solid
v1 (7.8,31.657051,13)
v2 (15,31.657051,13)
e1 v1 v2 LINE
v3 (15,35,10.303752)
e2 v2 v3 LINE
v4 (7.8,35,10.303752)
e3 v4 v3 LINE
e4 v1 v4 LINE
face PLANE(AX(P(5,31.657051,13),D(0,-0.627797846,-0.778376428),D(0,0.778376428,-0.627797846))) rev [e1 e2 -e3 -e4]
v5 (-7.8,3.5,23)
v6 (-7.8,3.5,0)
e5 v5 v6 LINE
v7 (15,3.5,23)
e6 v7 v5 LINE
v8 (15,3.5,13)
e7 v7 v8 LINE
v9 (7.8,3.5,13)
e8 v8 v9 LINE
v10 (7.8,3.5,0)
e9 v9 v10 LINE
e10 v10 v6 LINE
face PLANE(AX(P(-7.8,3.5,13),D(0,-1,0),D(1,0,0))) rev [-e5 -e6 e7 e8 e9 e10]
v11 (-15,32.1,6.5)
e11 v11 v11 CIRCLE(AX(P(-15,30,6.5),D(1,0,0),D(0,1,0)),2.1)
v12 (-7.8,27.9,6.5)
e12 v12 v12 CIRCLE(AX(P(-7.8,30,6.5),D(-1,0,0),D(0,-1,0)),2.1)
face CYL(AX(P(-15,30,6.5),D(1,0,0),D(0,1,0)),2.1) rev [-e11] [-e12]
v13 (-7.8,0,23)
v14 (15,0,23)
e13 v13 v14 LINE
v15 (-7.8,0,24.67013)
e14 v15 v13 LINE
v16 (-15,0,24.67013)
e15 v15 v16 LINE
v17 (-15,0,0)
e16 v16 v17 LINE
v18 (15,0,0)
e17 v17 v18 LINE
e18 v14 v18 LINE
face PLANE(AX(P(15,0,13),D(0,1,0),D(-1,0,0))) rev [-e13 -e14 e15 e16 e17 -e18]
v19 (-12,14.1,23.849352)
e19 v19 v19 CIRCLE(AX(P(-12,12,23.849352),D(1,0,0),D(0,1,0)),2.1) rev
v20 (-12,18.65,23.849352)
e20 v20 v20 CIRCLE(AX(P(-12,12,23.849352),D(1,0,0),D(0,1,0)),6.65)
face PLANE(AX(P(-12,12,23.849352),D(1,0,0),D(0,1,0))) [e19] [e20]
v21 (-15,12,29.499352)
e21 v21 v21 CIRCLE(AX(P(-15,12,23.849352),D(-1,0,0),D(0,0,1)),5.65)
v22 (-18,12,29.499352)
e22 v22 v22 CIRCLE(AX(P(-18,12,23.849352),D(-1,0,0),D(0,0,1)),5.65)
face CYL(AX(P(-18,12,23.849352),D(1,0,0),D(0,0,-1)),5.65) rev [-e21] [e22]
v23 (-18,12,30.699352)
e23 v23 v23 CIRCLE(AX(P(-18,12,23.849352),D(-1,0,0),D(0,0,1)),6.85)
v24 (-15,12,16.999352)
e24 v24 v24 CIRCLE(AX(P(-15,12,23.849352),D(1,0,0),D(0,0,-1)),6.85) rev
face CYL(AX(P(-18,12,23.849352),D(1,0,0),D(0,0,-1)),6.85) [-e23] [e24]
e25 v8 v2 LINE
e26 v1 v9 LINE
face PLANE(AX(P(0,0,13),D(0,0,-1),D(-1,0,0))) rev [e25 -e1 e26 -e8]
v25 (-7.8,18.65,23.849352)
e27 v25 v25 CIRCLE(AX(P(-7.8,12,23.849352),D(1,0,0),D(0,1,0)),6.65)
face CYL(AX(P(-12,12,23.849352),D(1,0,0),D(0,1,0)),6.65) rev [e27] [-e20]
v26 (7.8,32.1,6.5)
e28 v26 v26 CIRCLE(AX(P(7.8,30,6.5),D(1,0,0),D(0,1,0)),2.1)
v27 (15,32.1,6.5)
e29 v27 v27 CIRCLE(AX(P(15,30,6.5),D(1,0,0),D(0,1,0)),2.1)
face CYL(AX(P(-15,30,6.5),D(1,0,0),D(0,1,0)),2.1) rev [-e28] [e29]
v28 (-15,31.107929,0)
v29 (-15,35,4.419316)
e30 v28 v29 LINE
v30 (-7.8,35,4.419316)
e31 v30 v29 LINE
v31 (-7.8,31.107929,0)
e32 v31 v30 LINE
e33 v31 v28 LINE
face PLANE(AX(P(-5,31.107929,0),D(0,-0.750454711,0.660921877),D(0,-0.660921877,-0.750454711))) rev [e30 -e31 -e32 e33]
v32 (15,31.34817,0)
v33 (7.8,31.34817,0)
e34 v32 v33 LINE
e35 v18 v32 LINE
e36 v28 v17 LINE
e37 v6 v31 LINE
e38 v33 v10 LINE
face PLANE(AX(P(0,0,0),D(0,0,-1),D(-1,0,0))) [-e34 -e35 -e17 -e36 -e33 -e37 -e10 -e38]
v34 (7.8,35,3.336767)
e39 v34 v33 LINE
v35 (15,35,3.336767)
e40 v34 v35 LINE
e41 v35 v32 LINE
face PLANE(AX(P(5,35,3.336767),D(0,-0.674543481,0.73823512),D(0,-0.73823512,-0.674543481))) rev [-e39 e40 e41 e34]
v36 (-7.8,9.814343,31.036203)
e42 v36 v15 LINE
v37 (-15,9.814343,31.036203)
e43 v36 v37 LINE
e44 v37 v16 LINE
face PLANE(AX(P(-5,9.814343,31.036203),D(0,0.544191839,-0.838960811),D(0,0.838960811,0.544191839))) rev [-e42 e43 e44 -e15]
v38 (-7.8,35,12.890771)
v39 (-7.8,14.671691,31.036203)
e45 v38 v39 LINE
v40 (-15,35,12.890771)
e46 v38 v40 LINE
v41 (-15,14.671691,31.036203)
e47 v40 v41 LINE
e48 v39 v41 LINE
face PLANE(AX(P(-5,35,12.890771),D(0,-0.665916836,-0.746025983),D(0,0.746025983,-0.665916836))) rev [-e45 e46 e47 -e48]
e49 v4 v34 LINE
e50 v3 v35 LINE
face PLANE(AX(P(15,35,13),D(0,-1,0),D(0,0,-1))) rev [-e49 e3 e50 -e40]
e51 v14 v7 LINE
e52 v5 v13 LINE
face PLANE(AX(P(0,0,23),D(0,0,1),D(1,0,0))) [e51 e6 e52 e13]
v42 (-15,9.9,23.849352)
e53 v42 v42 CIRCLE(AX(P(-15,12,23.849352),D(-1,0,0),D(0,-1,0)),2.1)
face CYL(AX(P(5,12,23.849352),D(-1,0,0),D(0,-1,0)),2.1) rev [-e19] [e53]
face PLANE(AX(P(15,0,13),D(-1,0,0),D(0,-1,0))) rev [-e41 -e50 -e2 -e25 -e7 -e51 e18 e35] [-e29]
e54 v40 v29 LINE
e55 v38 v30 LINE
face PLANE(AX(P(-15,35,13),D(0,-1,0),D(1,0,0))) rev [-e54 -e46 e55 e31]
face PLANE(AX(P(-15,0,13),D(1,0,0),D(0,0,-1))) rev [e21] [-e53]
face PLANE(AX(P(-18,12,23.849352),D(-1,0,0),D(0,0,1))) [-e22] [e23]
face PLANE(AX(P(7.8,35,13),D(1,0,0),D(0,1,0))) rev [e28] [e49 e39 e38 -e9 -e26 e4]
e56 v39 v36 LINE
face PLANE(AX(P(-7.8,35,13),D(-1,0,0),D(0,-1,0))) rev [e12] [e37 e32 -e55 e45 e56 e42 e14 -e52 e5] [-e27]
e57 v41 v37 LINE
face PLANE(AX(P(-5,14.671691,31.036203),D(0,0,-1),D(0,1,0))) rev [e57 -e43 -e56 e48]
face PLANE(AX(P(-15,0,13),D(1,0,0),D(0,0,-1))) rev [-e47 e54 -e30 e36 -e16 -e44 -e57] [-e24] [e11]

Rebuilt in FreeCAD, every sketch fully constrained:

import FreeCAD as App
import Part
import Sketcher

V = App.Vector


def add_polygon(sketch, points):
    """Adds a closed chain of lines whose ends are joined by coincident constraints."""
    first, n = sketch.GeometryCount, len(points)
    for a, b in zip(points, points[1:] + points[:1]):
        sketch.addGeometry(Part.LineSegment(App.Vector(*a, 0), App.Vector(*b, 0)), False)
    for i in range(n):
        sketch.addConstraint(Sketcher.Constraint("Coincident", first + i, 2, first + (i + 1) % n, 1))

doc = App.newDocument("Part")
body = doc.addObject("PartDesign::Body", "Body")

# Sketch on XY plane
sketch1 = doc.addObject("Sketcher::SketchObject", "Sketch")
body.addObject(sketch1)
sketch1.AttachmentSupport = (doc.XY_Plane, [""])
sketch1.MapMode = "FlatFace"
add_polygon(sketch1, [(-15, 0), (15, 0), (15, 35), (8, 35), (8, 4), (-8, 4), (-8, 35), (-15, 35)])  # lines 0-7
sketch1.addConstraint(Sketcher.Constraint("Horizontal", 0))
sketch1.addConstraint(Sketcher.Constraint("Vertical", 1))
sketch1.addConstraint(Sketcher.Constraint("Horizontal", 2))
sketch1.addConstraint(Sketcher.Constraint("Vertical", 3))
sketch1.addConstraint(Sketcher.Constraint("Horizontal", 4))
sketch1.addConstraint(Sketcher.Constraint("Vertical", 5))
sketch1.addConstraint(Sketcher.Constraint("Horizontal", 6))
sketch1.addConstraint(Sketcher.Constraint("Vertical", 7))
sketch1.addConstraint(Sketcher.Constraint("Symmetric", 0, 2, 7, 2, -1, 1))
sketch1.addConstraint(Sketcher.Constraint("Symmetric", 2, 2, 5, 2, -2))
sketch1.addConstraint(Sketcher.Constraint("DistanceX", 0, 1, 0, 2, 30.0))
sketch1.addConstraint(Sketcher.Constraint("DistanceY", 1, 1, 1, 2, 35.0))
sketch1.addConstraint(Sketcher.Constraint("DistanceX", 2, 2, 2, 1, 7.2))
sketch1.addConstraint(Sketcher.Constraint("DistanceY", 3, 2, 3, 1, 31.5))
pad1 = doc.addObject("PartDesign::Pad", "Pad")
body.addObject(pad1)
pad1.Profile = sketch1
pad1.Length = 13

# Sketch on YZ plane
sketch2 = doc.addObject("Sketcher::SketchObject", "Sketch001")
body.addObject(sketch2)
sketch2.AttachmentSupport = (doc.YZ_Plane, [""])
sketch2.MapMode = "FlatFace"
sketch2.AttachmentOffset = App.Placement(V(0, 0, 15), App.Rotation())
sketch2.addGeometry(Part.Circle(V(30, 6.5, 0), V(0, 0, 1), 2.1), False)
sketch2.addConstraint(Sketcher.Constraint("Diameter", 0, 4.2))
sketch2.addConstraint(Sketcher.Constraint("DistanceX", -1, 1, 0, 3, 30.0))
sketch2.addConstraint(Sketcher.Constraint("DistanceY", -1, 1, 0, 3, 6.5))
pocket1 = doc.addObject("PartDesign::Pocket", "Pocket")
body.addObject(pocket1)
pocket1.Profile = sketch2
pocket1.Type = "ThroughAll"

# Sketch on XY plane
sketch3 = doc.addObject("Sketcher::SketchObject", "Sketch002")
body.addObject(sketch3)
sketch3.AttachmentSupport = (doc.XY_Plane, [""])
sketch3.MapMode = "FlatFace"
sketch3.AttachmentOffset = App.Placement(V(0, 0, 13), App.Rotation())
add_polygon(sketch3, [(-15, 35), (-15, 0), (-8, 0), (-8, 35)])  # lines 0-3
sketch3.addConstraint(Sketcher.Constraint("Vertical", 0))
sketch3.addConstraint(Sketcher.Constraint("Horizontal", 1))
sketch3.addConstraint(Sketcher.Constraint("Vertical", 2))
sketch3.addConstraint(Sketcher.Constraint("Horizontal", 3))
sketch3.addConstraint(Sketcher.Constraint("PointOnObject", 0, 2, -1))
sketch3.addConstraint(Sketcher.Constraint("DistanceY", 0, 2, 0, 1, 35.0))
sketch3.addConstraint(Sketcher.Constraint("DistanceX", 1, 1, 1, 2, 7.2))
sketch3.addConstraint(Sketcher.Constraint("DistanceX", 0, 2, -1, 1, 15.0))
pad2 = doc.addObject("PartDesign::Pad", "Pad001")
body.addObject(pad2)
pad2.Profile = sketch3
pad2.Length = 20

# Sketch on YZ plane
sketch4 = doc.addObject("Sketcher::SketchObject", "Sketch003")
body.addObject(sketch4)
sketch4.AttachmentSupport = (doc.YZ_Plane, [""])
sketch4.MapMode = "FlatFace"
sketch4.AttachmentOffset = App.Placement(V(0, 0, -15), App.Rotation())
sketch4.addGeometry(Part.Circle(V(12, 23.8, 0), V(0, 0, 1), 2.1), False)
sketch4.addConstraint(Sketcher.Constraint("Diameter", 0, 4.2))
sketch4.addConstraint(Sketcher.Constraint("DistanceX", -1, 1, 0, 3, 12.0))
sketch4.addConstraint(Sketcher.Constraint("DistanceY", -1, 1, 0, 3, 23.849352))
pocket2 = doc.addObject("PartDesign::Pocket", "Pocket001")
body.addObject(pocket2)
pocket2.Profile = sketch4
pocket2.Length = 20
pocket2.Reversed = True

# Sketch on XY plane
sketch5 = doc.addObject("Sketcher::SketchObject", "Sketch004")
body.addObject(sketch5)
sketch5.AttachmentSupport = (doc.XY_Plane, [""])
sketch5.MapMode = "FlatFace"
sketch5.AttachmentOffset = App.Placement(V(0, 0, 13), App.Rotation())
add_polygon(sketch5, [(-7.8, 3.5), (-7.8, 0), (15, 0), (15, 3.5)])  # lines 0-3
sketch5.addConstraint(Sketcher.Constraint("Vertical", 0))
sketch5.addConstraint(Sketcher.Constraint("Horizontal", 1))
sketch5.addConstraint(Sketcher.Constraint("Vertical", 2))
sketch5.addConstraint(Sketcher.Constraint("Horizontal", 3))
sketch5.addConstraint(Sketcher.Constraint("PointOnObject", 0, 2, -1))
sketch5.addConstraint(Sketcher.Constraint("DistanceX", 1, 1, 1, 2, 22.8))
sketch5.addConstraint(Sketcher.Constraint("DistanceY", 0, 2, 0, 1, 3.5))
sketch5.addConstraint(Sketcher.Constraint("DistanceX", -1, 1, 1, 2, 15.0))
pad3 = doc.addObject("PartDesign::Pad", "Pad002")
body.addObject(pad3)
pad3.Profile = sketch5
pad3.Length = 10

# Sketch on YZ plane
sketch6 = doc.addObject("Sketcher::SketchObject", "Sketch005")
body.addObject(sketch6)
sketch6.AttachmentSupport = (doc.YZ_Plane, [""])
sketch6.MapMode = "FlatFace"
sketch6.AttachmentOffset = App.Placement(V(0, 0, -7.8), App.Rotation())
sketch6.addGeometry(Part.Circle(V(12, 24, 0), V(0, 0, 1), 7), False)
sketch6.addConstraint(Sketcher.Constraint("Diameter", 0, 13.3))
sketch6.addConstraint(Sketcher.Constraint("DistanceX", -1, 1, 0, 3, 12.0))
sketch6.addConstraint(Sketcher.Constraint("DistanceY", -1, 1, 0, 3, 23.849352))
pocket3 = doc.addObject("PartDesign::Pocket", "Pocket002")
body.addObject(pocket3)
pocket3.Profile = sketch6
pocket3.Length = 4.2

# Sketch on YZ plane
sketch7 = doc.addObject("Sketcher::SketchObject", "Sketch006")
body.addObject(sketch7)
sketch7.AttachmentSupport = (doc.YZ_Plane, [""])
sketch7.MapMode = "FlatFace"
sketch7.AttachmentOffset = App.Placement(V(0, 0, -15), App.Rotation())
add_polygon(sketch7, [(35, 12.9), (14.7, 31), (9.8, 31), (0, 24.7), (0, 33), (35, 33)])  # lines 0-5
add_polygon(sketch7, [(35, 0), (31.1, 0), (35, 4.4)])  # lines 6-8
sketch7.addConstraint(Sketcher.Constraint("Horizontal", 1))
sketch7.addConstraint(Sketcher.Constraint("Vertical", 3))
sketch7.addConstraint(Sketcher.Constraint("Horizontal", 4))
sketch7.addConstraint(Sketcher.Constraint("Vertical", 5))
sketch7.addConstraint(Sketcher.Constraint("Horizontal", 6))
sketch7.addConstraint(Sketcher.Constraint("Vertical", 8))
sketch7.addConstraint(Sketcher.Constraint("PointOnObject", 2, 2, -2))
sketch7.addConstraint(Sketcher.Constraint("PointOnObject", 6, 2, -1))
sketch7.addConstraint(Sketcher.Constraint("Vertical", 5, 2, 7, 2))
sketch7.addConstraint(Sketcher.Constraint("DistanceX", 4, 1, 4, 2, 35.0))
sketch7.addConstraint(Sketcher.Constraint("DistanceY", -1, 1, 3, 2, 33.0))
sketch7.addConstraint(Sketcher.Constraint("DistanceX", 6, 2, 6, 1, 3.892071))
sketch7.addConstraint(Sketcher.Constraint("DistanceY", 3, 1, 3, 2, 8.32987))
sketch7.addConstraint(Sketcher.Constraint("DistanceY", 5, 2, 5, 1, 20.109229))
sketch7.addConstraint(Sketcher.Constraint("Distance", 7, 5.888852))
sketch7.addConstraint(Sketcher.Constraint("DistanceX", 1, 2, 1, 1, 4.857348))
sketch7.addConstraint(Sketcher.Constraint("DistanceX", -1, 1, 0, 2, 14.671691))
sketch7.addConstraint(Sketcher.Constraint("DistanceY", 5, 2, 0, 2, 18.145431))
pocket4 = doc.addObject("PartDesign::Pocket", "Pocket003")
body.addObject(pocket4)
pocket4.Profile = sketch7
pocket4.Length = 10
pocket4.Reversed = True

# Sketch on YZ plane
sketch8 = doc.addObject("Sketcher::SketchObject", "Sketch007")
body.addObject(sketch8)
sketch8.AttachmentSupport = (doc.YZ_Plane, [""])
sketch8.MapMode = "FlatFace"
sketch8.AttachmentOffset = App.Placement(V(0, 0, 15), App.Rotation())
add_polygon(sketch8, [(35, 3.3), (31.3, 0), (35, 0)])  # lines 0-2
add_polygon(sketch8, [(35, 10.3), (35, 13), (31.7, 13)])  # lines 3-5
sketch8.addConstraint(Sketcher.Constraint("Horizontal", 1))
sketch8.addConstraint(Sketcher.Constraint("Vertical", 2))
sketch8.addConstraint(Sketcher.Constraint("Vertical", 3))
sketch8.addConstraint(Sketcher.Constraint("Horizontal", 4))
sketch8.addConstraint(Sketcher.Constraint("PointOnObject", 0, 2, -1))
sketch8.addConstraint(Sketcher.Constraint("Vertical", 2, 2, 3, 2))
sketch8.addConstraint(Sketcher.Constraint("DistanceX", -1, 1, 1, 2, 35.0))
sketch8.addConstraint(Sketcher.Constraint("DistanceY", -1, 1, 3, 2, 13.0))
sketch8.addConstraint(Sketcher.Constraint("DistanceX", 1, 1, 1, 2, 3.65183))
sketch8.addConstraint(Sketcher.Constraint("DistanceX", 4, 2, 4, 1, 3.342949))
sketch8.addConstraint(Sketcher.Constraint("DistanceY", 3, 1, 3, 2, 2.696248))
sketch8.addConstraint(Sketcher.Constraint("DistanceY", 2, 1, 2, 2, 3.336767))
pocket5 = doc.addObject("PartDesign::Pocket", "Pocket004")
body.addObject(pocket5)
pocket5.Profile = sketch8
pocket5.Length = 10

# Sketch on YZ plane
sketch9 = doc.addObject("Sketcher::SketchObject", "Sketch008")
body.addObject(sketch9)
sketch9.AttachmentSupport = (doc.YZ_Plane, [""])
sketch9.MapMode = "FlatFace"
sketch9.AttachmentOffset = App.Placement(V(0, 0, -15), App.Rotation())
sketch9.addGeometry(Part.Circle(V(12, 24, 0), V(0, 0, 1), 7), False)
sketch9.addGeometry(Part.Circle(V(12, 24, 0), V(0, 0, 1), 6), False)
sketch9.addConstraint(Sketcher.Constraint("Coincident", 1, 3, 0, 3))
sketch9.addConstraint(Sketcher.Constraint("Diameter", 0, 13.7))
sketch9.addConstraint(Sketcher.Constraint("Diameter", 1, 11.3))
sketch9.addConstraint(Sketcher.Constraint("DistanceX", -1, 1, 0, 3, 12.0))
sketch9.addConstraint(Sketcher.Constraint("DistanceY", -1, 1, 0, 3, 23.849352))
pad4 = doc.addObject("PartDesign::Pad", "Pad003")
body.addObject(pad4)
pad4.Profile = sketch9
pad4.Length = 3
pad4.Reversed = True

doc.recompute()
